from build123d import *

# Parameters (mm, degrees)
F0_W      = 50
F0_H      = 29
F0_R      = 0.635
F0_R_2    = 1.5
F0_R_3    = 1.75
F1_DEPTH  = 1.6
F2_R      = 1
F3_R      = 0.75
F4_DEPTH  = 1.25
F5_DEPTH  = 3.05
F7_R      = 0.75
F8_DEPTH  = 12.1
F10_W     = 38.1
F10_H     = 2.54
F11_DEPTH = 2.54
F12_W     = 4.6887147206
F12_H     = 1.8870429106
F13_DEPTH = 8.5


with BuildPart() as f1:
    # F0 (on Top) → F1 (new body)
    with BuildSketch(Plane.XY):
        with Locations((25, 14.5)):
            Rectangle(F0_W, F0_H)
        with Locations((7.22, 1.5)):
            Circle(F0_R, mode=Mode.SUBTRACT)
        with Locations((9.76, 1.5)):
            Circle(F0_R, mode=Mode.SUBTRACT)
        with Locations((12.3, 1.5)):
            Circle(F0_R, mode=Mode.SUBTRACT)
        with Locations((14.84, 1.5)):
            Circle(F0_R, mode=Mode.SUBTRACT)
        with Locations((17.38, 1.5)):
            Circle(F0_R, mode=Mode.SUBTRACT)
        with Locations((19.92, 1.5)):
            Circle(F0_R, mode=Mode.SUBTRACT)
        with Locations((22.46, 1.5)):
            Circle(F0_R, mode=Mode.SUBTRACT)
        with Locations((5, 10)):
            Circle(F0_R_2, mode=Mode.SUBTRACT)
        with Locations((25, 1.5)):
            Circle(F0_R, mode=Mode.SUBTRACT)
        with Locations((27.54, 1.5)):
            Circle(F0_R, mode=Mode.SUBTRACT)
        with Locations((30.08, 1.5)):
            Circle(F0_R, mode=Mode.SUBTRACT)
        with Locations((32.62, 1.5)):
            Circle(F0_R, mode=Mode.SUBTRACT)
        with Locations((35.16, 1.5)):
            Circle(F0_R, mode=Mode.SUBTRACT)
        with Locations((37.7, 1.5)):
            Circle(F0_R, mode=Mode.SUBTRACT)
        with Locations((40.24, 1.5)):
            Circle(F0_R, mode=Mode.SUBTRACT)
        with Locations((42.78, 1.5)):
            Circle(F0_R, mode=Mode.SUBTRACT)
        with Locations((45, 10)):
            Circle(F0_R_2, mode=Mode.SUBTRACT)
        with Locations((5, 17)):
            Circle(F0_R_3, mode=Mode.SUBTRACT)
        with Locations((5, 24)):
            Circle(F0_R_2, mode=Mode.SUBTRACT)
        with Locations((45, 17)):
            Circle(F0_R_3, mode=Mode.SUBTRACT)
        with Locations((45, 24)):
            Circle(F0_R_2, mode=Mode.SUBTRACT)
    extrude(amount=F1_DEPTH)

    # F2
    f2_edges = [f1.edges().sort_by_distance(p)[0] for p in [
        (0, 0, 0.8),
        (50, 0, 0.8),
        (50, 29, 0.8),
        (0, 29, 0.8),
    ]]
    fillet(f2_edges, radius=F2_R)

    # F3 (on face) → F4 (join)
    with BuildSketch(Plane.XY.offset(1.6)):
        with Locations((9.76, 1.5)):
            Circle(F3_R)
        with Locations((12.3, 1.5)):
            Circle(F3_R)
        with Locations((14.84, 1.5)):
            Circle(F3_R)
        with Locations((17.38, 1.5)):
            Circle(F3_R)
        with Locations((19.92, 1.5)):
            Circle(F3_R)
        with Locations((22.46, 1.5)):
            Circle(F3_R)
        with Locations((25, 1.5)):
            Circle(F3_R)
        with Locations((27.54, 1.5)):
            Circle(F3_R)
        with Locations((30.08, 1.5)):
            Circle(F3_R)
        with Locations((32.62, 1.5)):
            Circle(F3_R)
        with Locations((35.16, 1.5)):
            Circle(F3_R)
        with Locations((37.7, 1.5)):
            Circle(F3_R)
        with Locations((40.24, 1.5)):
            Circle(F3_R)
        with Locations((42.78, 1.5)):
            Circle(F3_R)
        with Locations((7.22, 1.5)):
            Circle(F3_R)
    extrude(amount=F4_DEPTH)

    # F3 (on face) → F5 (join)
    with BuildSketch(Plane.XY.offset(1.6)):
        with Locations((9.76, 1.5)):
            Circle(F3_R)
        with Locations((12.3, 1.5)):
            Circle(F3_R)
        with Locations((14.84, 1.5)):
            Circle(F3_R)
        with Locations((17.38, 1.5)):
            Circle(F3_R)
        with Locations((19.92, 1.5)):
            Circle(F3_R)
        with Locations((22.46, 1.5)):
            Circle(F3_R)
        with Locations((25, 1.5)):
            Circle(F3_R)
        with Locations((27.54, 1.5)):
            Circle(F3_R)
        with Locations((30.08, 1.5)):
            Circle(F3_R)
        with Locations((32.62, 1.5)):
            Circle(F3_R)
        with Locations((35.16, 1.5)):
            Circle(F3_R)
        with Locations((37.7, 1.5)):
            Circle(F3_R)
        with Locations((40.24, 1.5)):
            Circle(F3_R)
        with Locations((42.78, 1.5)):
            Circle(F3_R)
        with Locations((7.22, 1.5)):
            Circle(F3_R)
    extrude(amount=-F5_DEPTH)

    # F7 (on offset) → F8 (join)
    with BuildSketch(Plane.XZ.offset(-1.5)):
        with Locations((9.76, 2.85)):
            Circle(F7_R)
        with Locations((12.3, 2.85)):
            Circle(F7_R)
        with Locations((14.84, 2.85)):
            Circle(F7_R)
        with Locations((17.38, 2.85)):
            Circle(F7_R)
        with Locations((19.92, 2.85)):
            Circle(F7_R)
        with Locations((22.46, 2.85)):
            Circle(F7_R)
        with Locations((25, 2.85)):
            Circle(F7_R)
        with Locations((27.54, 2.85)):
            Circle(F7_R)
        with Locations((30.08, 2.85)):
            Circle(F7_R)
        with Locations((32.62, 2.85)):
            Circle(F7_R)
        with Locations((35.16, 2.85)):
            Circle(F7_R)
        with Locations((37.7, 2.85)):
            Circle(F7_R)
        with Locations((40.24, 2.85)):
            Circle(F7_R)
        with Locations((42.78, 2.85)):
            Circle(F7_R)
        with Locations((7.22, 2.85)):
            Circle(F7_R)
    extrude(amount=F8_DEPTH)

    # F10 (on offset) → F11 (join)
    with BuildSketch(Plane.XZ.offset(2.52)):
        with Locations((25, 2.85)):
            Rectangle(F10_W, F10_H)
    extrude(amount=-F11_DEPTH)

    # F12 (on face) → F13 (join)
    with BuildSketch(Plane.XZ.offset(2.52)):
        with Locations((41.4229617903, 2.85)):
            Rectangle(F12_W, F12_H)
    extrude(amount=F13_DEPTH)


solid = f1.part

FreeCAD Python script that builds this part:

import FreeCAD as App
import Part
import Sketcher

V = App.Vector
Q = App.Units.Quantity


def edges_at(feature, points):
    """Names of the edges that pass closest to the given points."""
    edges = feature.Shape.Edges
    near = lambda p: min(range(len(edges)), key=lambda i: edges[i].distToShape(Part.Vertex(*p))[0])
    return sorted({f"Edge{near(p) + 1}" for p in points})


def add_polygon(sketch, points):
    """Adds a closed chain of lines whose ends are joined by coincident constraints."""
    first, n = sketch.GeometryCount, len(points)
    for a, b in zip(points, points[1:] + points[:1]):
        sketch.addGeometry(Part.LineSegment(App.Vector(*a, 0), App.Vector(*b, 0)), False)
    for i in range(n):
        sketch.addConstraint(Sketcher.Constraint("Coincident", first + i, 2, first + (i + 1) % n, 1))

doc = App.newDocument("Part")
body = doc.addObject("PartDesign::Body", "Body")

# Sketch on XY plane
sketch1 = body.newObject("Sketcher::SketchObject", "Sketch")
sketch1.AttachmentSupport = (doc.getObject("XY_Plane"), [""])
sketch1.MapMode = "FlatFace"
add_polygon(sketch1, [(0, 29), (0, 0), (50, 0), (50, 29)])  # lines 0-3
sketch1.addGeometry(Part.Circle(V(7.22, 1.5, 0), V(0, 0, 1), 0.635), False)  # 4
sketch1.addGeometry(Part.Circle(V(9.76, 1.5, 0), V(0, 0, 1), 0.635), False)  # 5
sketch1.addGeometry(Part.Circle(V(12.3, 1.5, 0), V(0, 0, 1), 0.635), False)  # 6
sketch1.addGeometry(Part.Circle(V(14.84, 1.5, 0), V(0, 0, 1), 0.635), False)  # 7
sketch1.addGeometry(Part.Circle(V(17.38, 1.5, 0), V(0, 0, 1), 0.635), False)  # 8
sketch1.addGeometry(Part.Circle(V(19.92, 1.5, 0), V(0, 0, 1), 0.635), False)  # 9
sketch1.addGeometry(Part.Circle(V(22.46, 1.5, 0), V(0, 0, 1), 0.635), False)  # 10
sketch1.addGeometry(Part.Circle(V(5, 10, 0), V(0, 0, 1), 1.5), False)  # 11
sketch1.addGeometry(Part.Circle(V(25, 1.5, 0), V(0, 0, 1), 0.635), False)  # 12
sketch1.addGeometry(Part.Circle(V(27.54, 1.5, 0), V(0, 0, 1), 0.635), False)  # 13
sketch1.addGeometry(Part.Circle(V(30.08, 1.5, 0), V(0, 0, 1), 0.635), False)  # 14
sketch1.addGeometry(Part.Circle(V(32.62, 1.5, 0), V(0, 0, 1), 0.635), False)  # 15
sketch1.addGeometry(Part.Circle(V(35.16, 1.5, 0), V(0, 0, 1), 0.635), False)  # 16
sketch1.addGeometry(Part.Circle(V(37.7, 1.5, 0), V(0, 0, 1), 0.635), False)  # 17
sketch1.addGeometry(Part.Circle(V(40.24, 1.5, 0), V(0, 0, 1), 0.635), False)  # 18
sketch1.addGeometry(Part.Circle(V(42.78, 1.5, 0), V(0, 0, 1), 0.635), False)  # 19
sketch1.addGeometry(Part.Circle(V(45, 10, 0), V(0, 0, 1), 1.5), False)  # 20
sketch1.addGeometry(Part.Circle(V(5, 17, 0), V(0, 0, 1), 1.75), False)  # 21
sketch1.addGeometry(Part.Circle(V(5, 24, 0), V(0, 0, 1), 1.5), False)  # 22
sketch1.addGeometry(Part.Circle(V(45, 17, 0), V(0, 0, 1), 1.75), False)  # 23
sketch1.addGeometry(Part.Circle(V(45, 24, 0), V(0, 0, 1), 1.5), False)  # 24
sketch1.addConstraint(Sketcher.Constraint("Vertical", 0))
sketch1.addConstraint(Sketcher.Constraint("Horizontal", 1))
sketch1.addConstraint(Sketcher.Constraint("Vertical", 2))
sketch1.addConstraint(Sketcher.Constraint("Horizontal", 3))
sketch1.addConstraint(Sketcher.Constraint("Coincident", 0, 2, -1, 1))
sketch1.addConstraint(Sketcher.Constraint("Equal", 4, 5))
sketch1.addConstraint(Sketcher.Constraint("Equal", 5, 6))
sketch1.addConstraint(Sketcher.Constraint("Equal", 6, 7))
sketch1.addConstraint(Sketcher.Constraint("Equal", 7, 8))
sketch1.addConstraint(Sketcher.Constraint("Equal", 8, 9))
sketch1.addConstraint(Sketcher.Constraint("Equal", 9, 10))
sketch1.addConstraint(Sketcher.Constraint("Equal", 10, 12))
sketch1.addConstraint(Sketcher.Constraint("Equal", 12, 13))
sketch1.addConstraint(Sketcher.Constraint("Equal", 13, 14))
sketch1.addConstraint(Sketcher.Constraint("Equal", 14, 15))
sketch1.addConstraint(Sketcher.Constraint("Equal", 15, 16))
sketch1.addConstraint(Sketcher.Constraint("Equal", 16, 17))
sketch1.addConstraint(Sketcher.Constraint("Equal", 17, 18))
sketch1.addConstraint(Sketcher.Constraint("Equal", 18, 19))
sketch1.addConstraint(Sketcher.Constraint("Equal", 11, 20))
sketch1.addConstraint(Sketcher.Constraint("Equal", 20, 22))
sketch1.addConstraint(Sketcher.Constraint("Equal", 21, 23))
sketch1.addConstraint(Sketcher.Constraint("Equal", 22, 24))
sketch1.addConstraint(Sketcher.Constraint("Horizontal", 4, 3, 5, 3))
sketch1.addConstraint(Sketcher.Constraint("Horizontal", 5, 3, 6, 3))
sketch1.addConstraint(Sketcher.Constraint("Horizontal", 6, 3, 7, 3))
sketch1.addConstraint(Sketcher.Constraint("Horizontal", 7, 3, 8, 3))
sketch1.addConstraint(Sketcher.Constraint("Horizontal", 8, 3, 9, 3))
sketch1.addConstraint(Sketcher.Constraint("Horizontal", 9, 3, 10, 3))
sketch1.addConstraint(Sketcher.Constraint("Horizontal", 10, 3, 12, 3))
sketch1.addConstraint(Sketcher.Constraint("Horizontal", 12, 3, 13, 3))
sketch1.addConstraint(Sketcher.Constraint("Horizontal", 13, 3, 14, 3))
sketch1.addConstraint(Sketcher.Constraint("Horizontal", 14, 3, 15, 3))
sketch1.addConstraint(Sketcher.Constraint("Horizontal", 15, 3, 16, 3))
sketch1.addConstraint(Sketcher.Constraint("Horizontal", 16, 3, 17, 3))
sketch1.addConstraint(Sketcher.Constraint("Horizontal", 17, 3, 18, 3))
sketch1.addConstraint(Sketcher.Constraint("Horizontal", 18, 3, 19, 3))
sketch1.addConstraint(Sketcher.Constraint("Horizontal", 11, 3, 20, 3))
sketch1.addConstraint(Sketcher.Constraint("Horizontal", 21, 3, 23, 3))
sketch1.addConstraint(Sketcher.Constraint("Horizontal", 22, 3, 24, 3))
sketch1.addConstraint(Sketcher.Constraint("Vertical", 11, 3, 21, 3))
sketch1.addConstraint(Sketcher.Constraint("Vertical", 21, 3, 22, 3))
sketch1.addConstraint(Sketcher.Constraint("Vertical", 20, 3, 23, 3))
sketch1.addConstraint(Sketcher.Constraint("Vertical", 23, 3, 24, 3))
sketch1.addConstraint(Sketcher.Constraint("Diameter", 11, Q("3 mm")))
sketch1.addConstraint(Sketcher.Constraint("Diameter", 21, Q("3.5 mm")))
sketch1.addConstraint(Sketcher.Constraint("Diameter", 4, Q("1.27 mm")))
sketch1.addConstraint(Sketcher.Constraint("DistanceX", 1, 1, 1, 2, Q("50 mm")))
sketch1.addConstraint(Sketcher.Constraint("DistanceY", 0, 2, 0, 1, Q("29 mm")))
sketch1.addConstraint(Sketcher.Constraint("DistanceX", -1, 1, 11, 3, Q("5 mm")))
sketch1.addConstraint(Sketcher.Constraint("DistanceY", -1, 1, 11, 3, Q("10 mm")))
sketch1.addConstraint(Sketcher.Constraint("DistanceX", -1, 1, 12, 3, Q("25 mm")))
sketch1.addConstraint(Sketcher.Constraint("DistanceX", -1, 1, 20, 3, Q("45 mm")))
sketch1.addConstraint(Sketcher.Constraint("DistanceY", -1, 1, 21, 3, Q("17 mm")))
sketch1.addConstraint(Sketcher.Constraint("DistanceY", -1, 1, 22, 3, Q("24 mm")))
sketch1.addConstraint(Sketcher.Constraint("DistanceY", -1, 1, 4, 3, Q("1.5 mm")))
sketch1.addConstraint(Sketcher.Constraint("DistanceX", -1, 1, 6, 3, Q("12.3 mm")))
sketch1.addConstraint(Sketcher.Constraint("DistanceX", -1, 1, 17, 3, Q("37.7 mm")))
sketch1.addConstraint(Sketcher.Constraint("DistanceX", 4, 3, 9, 3, Q("12.7 mm")))
sketch1.addConstraint(Sketcher.Constraint("DistanceX", 5, 3, 10, 3, Q("12.7 mm")))
sketch1.addConstraint(Sketcher.Constraint("DistanceX", 7, 3, 13, 3, Q("12.7 mm")))
sketch1.addConstraint(Sketcher.Constraint("DistanceX", 8, 3, 14, 3, Q("12.7 mm")))
sketch1.addConstraint(Sketcher.Constraint("DistanceX", 9, 3, 15, 3, Q("12.7 mm")))
sketch1.addConstraint(Sketcher.Constraint("DistanceX", 10, 3, 16, 3, Q("12.7 mm")))
sketch1.addConstraint(Sketcher.Constraint("DistanceX", 13, 3, 18, 3, Q("12.7 mm")))
sketch1.addConstraint(Sketcher.Constraint("DistanceX", 14, 3, 19, 3, Q("12.7 mm")))
sketch1.addConstraint(Sketcher.Constraint("DistanceX", -1, 1, 4, 3, Q("7.22 mm")))
sketch1.addConstraint(Sketcher.Constraint("DistanceX", -1, 1, 5, 3, Q("9.76 mm")))
sketch1.addConstraint(Sketcher.Constraint("DistanceX", -1, 1, 7, 3, Q("14.84 mm")))
sketch1.addConstraint(Sketcher.Constraint("DistanceX", -1, 1, 8, 3, Q("17.38 mm")))
pad1 = body.newObject("PartDesign::Pad", "Pad")
pad1.Profile = sketch1
pad1.Length = 1.6
doc.recompute()

fillet = body.newObject("PartDesign::Fillet", "Fillet")
fillet.Base = (pad1, edges_at(pad1, [
    (0, 0, 0.8),
    (50, 0, 0.8),
    (50, 29, 0.8),
    (0, 29, 0.8),
]))
fillet.Radius = 1

# Sketch on XY plane
sketch2 = body.newObject("Sketcher::SketchObject", "Sketch001")
sketch2.AttachmentSupport = (doc.getObject("XY_Plane"), [""])
sketch2.MapMode = "FlatFace"
sketch2.AttachmentOffset = App.Placement(V(0, 0, 1.6), App.Rotation())
sketch2.addGeometry(Part.Circle(V(9.76, 1.5, 0), V(0, 0, 1), 0.75), False)
sketch2.addGeometry(Part.Circle(V(12.3, 1.5, 0), V(0, 0, 1), 0.75), False)
sketch2.addGeometry(Part.Circle(V(14.84, 1.5, 0), V(0, 0, 1), 0.75), False)
sketch2.addGeometry(Part.Circle(V(17.38, 1.5, 0), V(0, 0, 1), 0.75), False)
sketch2.addGeometry(Part.Circle(V(19.92, 1.5, 0), V(0, 0, 1), 0.75), False)
sketch2.addGeometry(Part.Circle(V(22.46, 1.5, 0), V(0, 0, 1), 0.75), False)
sketch2.addGeometry(Part.Circle(V(25, 1.5, 0), V(0, 0, 1), 0.75), False)
sketch2.addGeometry(Part.Circle(V(27.54, 1.5, 0), V(0, 0, 1), 0.75), False)
sketch2.addGeometry(Part.Circle(V(30.08, 1.5, 0), V(0, 0, 1), 0.75), False)
sketch2.addGeometry(Part.Circle(V(32.62, 1.5, 0), V(0, 0, 1), 0.75), False)
sketch2.addGeometry(Part.Circle(V(35.16, 1.5, 0), V(0, 0, 1), 0.75), False)
sketch2.addGeometry(Part.Circle(V(37.7, 1.5, 0), V(0, 0, 1), 0.75), False)
sketch2.addGeometry(Part.Circle(V(40.24, 1.5, 0), V(0, 0, 1), 0.75), False)
sketch2.addGeometry(Part.Circle(V(42.78, 1.5, 0), V(0, 0, 1), 0.75), False)
sketch2.addGeometry(Part.Circle(V(7.22, 1.5, 0), V(0, 0, 1), 0.75), False)
sketch2.addConstraint(Sketcher.Constraint("Equal", 0, 1))
sketch2.addConstraint(Sketcher.Constraint("Equal", 1, 2))
sketch2.addConstraint(Sketcher.Constraint("Equal", 2, 3))
sketch2.addConstraint(Sketcher.Constraint("Equal", 3, 4))
sketch2.addConstraint(Sketcher.Constraint("Equal", 4, 5))
sketch2.addConstraint(Sketcher.Constraint("Equal", 5, 6))
sketch2.addConstraint(Sketcher.Constraint("Equal", 6, 7))
sketch2.addConstraint(Sketcher.Constraint("Equal", 7, 8))
sketch2.addConstraint(Sketcher.Constraint("Equal", 8, 9))
sketch2.addConstraint(Sketcher.Constraint("Equal", 9, 10))
sketch2.addConstraint(Sketcher.Constraint("Equal", 10, 11))
sketch2.addConstraint(Sketcher.Constraint("Equal", 11, 12))
sketch2.addConstraint(Sketcher.Constraint("Equal", 12, 13))
sketch2.addConstraint(Sketcher.Constraint("Equal", 13, 14))
sketch2.addConstraint(Sketcher.Constraint("Horizontal", 0, 3, 1, 3))
sketch2.addConstraint(Sketcher.Constraint("Horizontal", 1, 3, 2, 3))
sketch2.addConstraint(Sketcher.Constraint("Horizontal", 2, 3, 3, 3))
sketch2.addConstraint(Sketcher.Constraint("Horizontal", 3, 3, 4, 3))
sketch2.addConstraint(Sketcher.Constraint("Horizontal", 4, 3, 5, 3))
sketch2.addConstraint(Sketcher.Constraint("Horizontal", 5, 3, 6, 3))
sketch2.addConstraint(Sketcher.Constraint("Horizontal", 6, 3, 7, 3))
sketch2.addConstraint(Sketcher.Constraint("Horizontal", 7, 3, 8, 3))
sketch2.addConstraint(Sketcher.Constraint("Horizontal", 8, 3, 9, 3))
sketch2.addConstraint(Sketcher.Constraint("Horizontal", 9, 3, 10, 3))
sketch2.addConstraint(Sketcher.Constraint("Horizontal", 10, 3, 11, 3))
sketch2.addConstraint(Sketcher.Constraint("Horizontal", 11, 3, 12, 3))
sketch2.addConstraint(Sketcher.Constraint("Horizontal", 12, 3, 13, 3))
sketch2.addConstraint(Sketcher.Constraint("Horizontal", 13, 3, 14, 3))
sketch2.addConstraint(Sketcher.Constraint("Diameter", 0, Q("1.5 mm")))
sketch2.addConstraint(Sketcher.Constraint("DistanceX", -1, 1, 6, 3, Q("25 mm")))
sketch2.addConstraint(Sketcher.Constraint("DistanceY", -1, 1, 0, 3, Q("1.5 mm")))
sketch2.addConstraint(Sketcher.Constraint("DistanceX", -1, 1, 1, 3, Q("12.3 mm")))
sketch2.addConstraint(Sketcher.Constraint("DistanceX", -1, 1, 11, 3, Q("37.7 mm")))
sketch2.addConstraint(Sketcher.Constraint("DistanceX", 0, 3, 5, 3, Q("12.7 mm")))
sketch2.addConstraint(Sketcher.Constraint("DistanceX", 2, 3, 7, 3, Q("12.7 mm")))
sketch2.addConstraint(Sketcher.Constraint("DistanceX", 3, 3, 8, 3, Q("12.7 mm")))
sketch2.addConstraint(Sketcher.Constraint("DistanceX", 4, 3, 9, 3, Q("12.7 mm")))
sketch2.addConstraint(Sketcher.Constraint("DistanceX", 5, 3, 10, 3, Q("12.7 mm")))
sketch2.addConstraint(Sketcher.Constraint("DistanceX", 7, 3, 12, 3, Q("12.7 mm")))
sketch2.addConstraint(Sketcher.Constraint("DistanceX", 8, 3, 13, 3, Q("12.7 mm")))
sketch2.addConstraint(Sketcher.Constraint("DistanceX", 14, 3, 4, 3, Q("12.7 mm")))
sketch2.addConstraint(Sketcher.Constraint("DistanceX", -1, 1, 0, 3, Q("9.76 mm")))
sketch2.addConstraint(Sketcher.Constraint("DistanceX", -1, 1, 2, 3, Q("14.84 mm")))
sketch2.addConstraint(Sketcher.Constraint("DistanceX", -1, 1, 3, 3, Q("17.38 mm")))
sketch2.addConstraint(Sketcher.Constraint("DistanceX", -1, 1, 4, 3, Q("19.92 mm")))
pad2 = body.newObject("PartDesign::Pad", "Pad001")
pad2.Profile = sketch2
pad2.Length = 1.25

# Sketch on XY plane
sketch3 = body.newObject("Sketcher::SketchObject", "Sketch002")
sketch3.AttachmentSupport = (doc.getObject("XY_Plane"), [""])
sketch3.MapMode = "FlatFace"
sketch3.AttachmentOffset = App.Placement(V(0, 0, 1.6), App.Rotation())
sketch3.addGeometry(Part.Circle(V(9.76, 1.5, 0), V(0, 0, 1), 0.75), False)
sketch3.addGeometry(Part.Circle(V(12.3, 1.5, 0), V(0, 0, 1), 0.75), False)
sketch3.addGeometry(Part.Circle(V(14.84, 1.5, 0), V(0, 0, 1), 0.75), False)
sketch3.addGeometry(Part.Circle(V(17.38, 1.5, 0), V(0, 0, 1), 0.75), False)
sketch3.addGeometry(Part.Circle(V(19.92, 1.5, 0), V(0, 0, 1), 0.75), False)
sketch3.addGeometry(Part.Circle(V(22.46, 1.5, 0), V(0, 0, 1), 0.75), False)
sketch3.addGeometry(Part.Circle(V(25, 1.5, 0), V(0, 0, 1), 0.75), False)
sketch3.addGeometry(Part.Circle(V(27.54, 1.5, 0), V(0, 0, 1), 0.75), False)
sketch3.addGeometry(Part.Circle(V(30.08, 1.5, 0), V(0, 0, 1), 0.75), False)
sketch3.addGeometry(Part.Circle(V(32.62, 1.5, 0), V(0, 0, 1), 0.75), False)
sketch3.addGeometry(Part.Circle(V(35.16, 1.5, 0), V(0, 0, 1), 0.75), False)
sketch3.addGeometry(Part.Circle(V(37.7, 1.5, 0), V(0, 0, 1), 0.75), False)
sketch3.addGeometry(Part.Circle(V(40.24, 1.5, 0), V(0, 0, 1), 0.75), False)
sketch3.addGeometry(Part.Circle(V(42.78, 1.5, 0), V(0, 0, 1), 0.75), False)
sketch3.addGeometry(Part.Circle(V(7.22, 1.5, 0), V(0, 0, 1), 0.75), False)
sketch3.addConstraint(Sketcher.Constraint("Equal", 0, 1))
sketch3.addConstraint(Sketcher.Constraint("Equal", 1, 2))
sketch3.addConstraint(Sketcher.Constraint("Equal", 2, 3))
sketch3.addConstraint(Sketcher.Constraint("Equal", 3, 4))
sketch3.addConstraint(Sketcher.Constraint("Equal", 4, 5))
sketch3.addConstraint(Sketcher.Constraint("Equal", 5, 6))
sketch3.addConstraint(Sketcher.Constraint("Equal", 6, 7))
sketch3.addConstraint(Sketcher.Constraint("Equal", 7, 8))
sketch3.addConstraint(Sketcher.Constraint("Equal", 8, 9))
sketch3.addConstraint(Sketcher.Constraint("Equal", 9, 10))
sketch3.addConstraint(Sketcher.Constraint("Equal", 10, 11))
sketch3.addConstraint(Sketcher.Constraint("Equal", 11, 12))
sketch3.addConstraint(Sketcher.Constraint("Equal", 12, 13))
sketch3.addConstraint(Sketcher.Constraint("Equal", 13, 14))
sketch3.addConstraint(Sketcher.Constraint("Horizontal", 0, 3, 1, 3))
sketch3.addConstraint(Sketcher.Constraint("Horizontal", 1, 3, 2, 3))
sketch3.addConstraint(Sketcher.Constraint("Horizontal", 2, 3, 3, 3))
sketch3.addConstraint(Sketcher.Constraint("Horizontal", 3, 3, 4, 3))
sketch3.addConstraint(Sketcher.Constraint("Horizontal", 4, 3, 5, 3))
sketch3.addConstraint(Sketcher.Constraint("Horizontal", 5, 3, 6, 3))
sketch3.addConstraint(Sketcher.Constraint("Horizontal", 6, 3, 7, 3))
sketch3.addConstraint(Sketcher.Constraint("Horizontal", 7, 3, 8, 3))
sketch3.addConstraint(Sketcher.Constraint("Horizontal", 8, 3, 9, 3))
sketch3.addConstraint(Sketcher.Constraint("Horizontal", 9, 3, 10, 3))
sketch3.addConstraint(Sketcher.Constraint("Horizontal", 10, 3, 11, 3))
sketch3.addConstraint(Sketcher.Constraint("Horizontal", 11, 3, 12, 3))
sketch3.addConstraint(Sketcher.Constraint("Horizontal", 12, 3, 13, 3))
sketch3.addConstraint(Sketcher.Constraint("Horizontal", 13, 3, 14, 3))
sketch3.addConstraint(Sketcher.Constraint("Diameter", 0, Q("1.5 mm")))
sketch3.addConstraint(Sketcher.Constraint("DistanceX", -1, 1, 6, 3, Q("25 mm")))
sketch3.addConstraint(Sketcher.Constraint("DistanceY", -1, 1, 0, 3, Q("1.5 mm")))
sketch3.addConstraint(Sketcher.Constraint("DistanceX", -1, 1, 1, 3, Q("12.3 mm")))
sketch3.addConstraint(Sketcher.Constraint("DistanceX", -1, 1, 11, 3, Q("37.7 mm")))
sketch3.addConstraint(Sketcher.Constraint("DistanceX", 0, 3, 5, 3, Q("12.7 mm")))
sketch3.addConstraint(Sketcher.Constraint("DistanceX", 2, 3, 7, 3, Q("12.7 mm")))
sketch3.addConstraint(Sketcher.Constraint("DistanceX", 3, 3, 8, 3, Q("12.7 mm")))
sketch3.addConstraint(Sketcher.Constraint("DistanceX", 4, 3, 9, 3, Q("12.7 mm")))
sketch3.addConstraint(Sketcher.Constraint("DistanceX", 5, 3, 10, 3, Q("12.7 mm")))
sketch3.addConstraint(Sketcher.Constraint("DistanceX", 7, 3, 12, 3, Q("12.7 mm")))
sketch3.addConstraint(Sketcher.Constraint("DistanceX", 8, 3, 13, 3, Q("12.7 mm")))
sketch3.addConstraint(Sketcher.Constraint("DistanceX", 14, 3, 4, 3, Q("12.7 mm")))
sketch3.addConstraint(Sketcher.Constraint("DistanceX", -1, 1, 0, 3, Q("9.76 mm")))
sketch3.addConstraint(Sketcher.Constraint("DistanceX", -1, 1, 2, 3, Q("14.84 mm")))
sketch3.addConstraint(Sketcher.Constraint("DistanceX", -1, 1, 3, 3, Q("17.38 mm")))
sketch3.addConstraint(Sketcher.Constraint("DistanceX", -1, 1, 4, 3, Q("19.92 mm")))
pad3 = body.newObject("PartDesign::Pad", "Pad002")
pad3.Profile = sketch3
pad3.Length = 3.05
pad3.Reversed = True

# Sketch on XZ plane
sketch4 = body.newObject("Sketcher::SketchObject", "Sketch003")
sketch4.AttachmentSupport = (doc.getObject("XZ_Plane"), [""])
sketch4.MapMode = "FlatFace"
sketch4.AttachmentOffset = App.Placement(V(0, 0, -1.5), App.Rotation())
sketch4.addGeometry(Part.Circle(V(9.76, 2.85, 0), V(0, 0, 1), 0.75), False)
sketch4.addGeometry(Part.Circle(V(12.3, 2.85, 0), V(0, 0, 1), 0.75), False)
sketch4.addGeometry(Part.Circle(V(14.84, 2.85, 0), V(0, 0, 1), 0.75), False)
sketch4.addGeometry(Part.Circle(V(17.38, 2.85, 0), V(0, 0, 1), 0.75), False)
sketch4.addGeometry(Part.Circle(V(19.92, 2.85, 0), V(0, 0, 1), 0.75), False)
sketch4.addGeometry(Part.Circle(V(22.46, 2.85, 0), V(0, 0, 1), 0.75), False)
sketch4.addGeometry(Part.Circle(V(25, 2.85, 0), V(0, 0, 1), 0.75), False)
sketch4.addGeometry(Part.Circle(V(27.54, 2.85, 0), V(0, 0, 1), 0.75), False)
sketch4.addGeometry(Part.Circle(V(30.08, 2.85, 0), V(0, 0, 1), 0.75), False)
sketch4.addGeometry(Part.Circle(V(32.62, 2.85, 0), V(0, 0, 1), 0.75), False)
sketch4.addGeometry(Part.Circle(V(35.16, 2.85, 0), V(0, 0, 1), 0.75), False)
sketch4.addGeometry(Part.Circle(V(37.7, 2.85, 0), V(0, 0, 1), 0.75), False)
sketch4.addGeometry(Part.Circle(V(40.24, 2.85, 0), V(0, 0, 1), 0.75), False)
sketch4.addGeometry(Part.Circle(V(42.78, 2.85, 0), V(0, 0, 1), 0.75), False)
sketch4.addGeometry(Part.Circle(V(7.22, 2.85, 0), V(0, 0, 1), 0.75), False)
sketch4.addConstraint(Sketcher.Constraint("Equal", 0, 1))
sketch4.addConstraint(Sketcher.Constraint("Equal", 1, 2))
sketch4.addConstraint(Sketcher.Constraint("Equal", 2, 3))
sketch4.addConstraint(Sketcher.Constraint("Equal", 3, 4))
sketch4.addConstraint(Sketcher.Constraint("Equal", 4, 5))
sketch4.addConstraint(Sketcher.Constraint("Equal", 5, 6))
sketch4.addConstraint(Sketcher.Constraint("Equal", 6, 7))
sketch4.addConstraint(Sketcher.Constraint("Equal", 7, 8))
sketch4.addConstraint(Sketcher.Constraint("Equal", 8, 9))
sketch4.addConstraint(Sketcher.Constraint("Equal", 9, 10))
sketch4.addConstraint(Sketcher.Constraint("Equal", 10, 11))
sketch4.addConstraint(Sketcher.Constraint("Equal", 11, 12))
sketch4.addConstraint(Sketcher.Constraint("Equal", 12, 13))
sketch4.addConstraint(Sketcher.Constraint("Equal", 13, 14))
sketch4.addConstraint(Sketcher.Constraint("Horizontal", 0, 3, 1, 3))
sketch4.addConstraint(Sketcher.Constraint("Horizontal", 1, 3, 2, 3))
sketch4.addConstraint(Sketcher.Constraint("Horizontal", 2, 3, 3, 3))
sketch4.addConstraint(Sketcher.Constraint("Horizontal", 3, 3, 4, 3))
sketch4.addConstraint(Sketcher.Constraint("Horizontal", 4, 3, 5, 3))
sketch4.addConstraint(Sketcher.Constraint("Horizontal", 5, 3, 6, 3))
sketch4.addConstraint(Sketcher.Constraint("Horizontal", 6, 3, 7, 3))
sketch4.addConstraint(Sketcher.Constraint("Horizontal", 7, 3, 8, 3))
sketch4.addConstraint(Sketcher.Constraint("Horizontal", 8, 3, 9, 3))
sketch4.addConstraint(Sketcher.Constraint("Horizontal", 9, 3, 10, 3))
sketch4.addConstraint(Sketcher.Constraint("Horizontal", 10, 3, 11, 3))
sketch4.addConstraint(Sketcher.Constraint("Horizontal", 11, 3, 12, 3))
sketch4.addConstraint(Sketcher.Constraint("Horizontal", 12, 3, 13, 3))
sketch4.addConstraint(Sketcher.Constraint("Horizontal", 13, 3, 14, 3))
sketch4.addConstraint(Sketcher.Constraint("Diameter", 0, Q("1.5 mm")))
sketch4.addConstraint(Sketcher.Constraint("DistanceX", -1, 1, 6, 3, Q("25 mm")))
sketch4.addConstraint(Sketcher.Constraint("DistanceX", -1, 1, 1, 3, Q("12.3 mm")))
sketch4.addConstraint(Sketcher.Constraint("DistanceX", -1, 1, 11, 3, Q("37.7 mm")))
sketch4.addConstraint(Sketcher.Constraint("DistanceX", 0, 3, 5, 3, Q("12.7 mm")))
sketch4.addConstraint(Sketcher.Constraint("DistanceX", 2, 3, 7, 3, Q("12.7 mm")))
sketch4.addConstraint(Sketcher.Constraint("DistanceX", 3, 3, 8, 3, Q("12.7 mm")))
sketch4.addConstraint(Sketcher.Constraint("DistanceX", 4, 3, 9, 3, Q("12.7 mm")))
sketch4.addConstraint(Sketcher.Constraint("DistanceX", 5, 3, 10, 3, Q("12.7 mm")))
sketch4.addConstraint(Sketcher.Constraint("DistanceX", 7, 3, 12, 3, Q("12.7 mm")))
sketch4.addConstraint(Sketcher.Constraint("DistanceX", 8, 3, 13, 3, Q("12.7 mm")))
sketch4.addConstraint(Sketcher.Constraint("DistanceX", 14, 3, 4, 3, Q("12.7 mm")))
sketch4.addConstraint(Sketcher.Constraint("DistanceX", -1, 1, 0, 3, Q("9.76 mm")))
sketch4.addConstraint(Sketcher.Constraint("DistanceY", -1, 1, 0, 3, Q("2.85 mm")))
sketch4.addConstraint(Sketcher.Constraint("DistanceX", -1, 1, 2, 3, Q("14.84 mm")))
sketch4.addConstraint(Sketcher.Constraint("DistanceX", -1, 1, 3, 3, Q("17.38 mm")))
sketch4.addConstraint(Sketcher.Constraint("DistanceX", -1, 1, 4, 3, Q("19.92 mm")))
pad4 = body.newObject("PartDesign::Pad", "Pad003")
pad4.Profile = sketch4
pad4.Length = 12.1

# Sketch on XZ plane
sketch5 = body.newObject("Sketcher::SketchObject", "Sketch004")
sketch5.AttachmentSupport = (doc.getObject("XZ_Plane"), [""])
sketch5.MapMode = "FlatFace"
sketch5.AttachmentOffset = App.Placement(V(0, 0, 2.52), App.Rotation())
add_polygon(sketch5, [(5.95, 4.12), (5.95, 1.58), (44.05, 1.58), (44.05, 4.12)])  # lines 0-3
sketch5.addConstraint(Sketcher.Constraint("Vertical", 0))
sketch5.addConstraint(Sketcher.Constraint("Horizontal", 1))
sketch5.addConstraint(Sketcher.Constraint("Vertical", 2))
sketch5.addConstraint(Sketcher.Constraint("Horizontal", 3))
sketch5.addConstraint(Sketcher.Constraint("DistanceX", 1, 1, 1, 2, Q("38.1 mm")))
sketch5.addConstraint(Sketcher.Constraint("DistanceY", 0, 2, 0, 1, Q("2.54 mm")))
sketch5.addConstraint(Sketcher.Constraint("DistanceX", -1, 1, 0, 2, Q("5.95 mm")))
sketch5.addConstraint(Sketcher.Constraint("DistanceY", -1, 1, 0, 2, Q("1.58 mm")))
pad5 = body.newObject("PartDesign::Pad", "Pad004")
pad5.Profile = sketch5
pad5.Length = 2.54
pad5.Reversed = True

# Sketch on XZ plane
sketch6 = body.newObject("Sketcher::SketchObject", "Sketch005")
sketch6.AttachmentSupport = (doc.getObject("XZ_Plane"), [""])
sketch6.MapMode = "FlatFace"
sketch6.AttachmentOffset = App.Placement(V(0, 0, 2.52), App.Rotation())
add_polygon(sketch6, [(39.078604, 3.793521), (39.078604, 1.906479), (43.767319, 1.906479), (43.767319, 3.793521)])  # lines 0-3
sketch6.addConstraint(Sketcher.Constraint("Vertical", 0))
sketch6.addConstraint(Sketcher.Constraint("Horizontal", 1))
sketch6.addConstraint(Sketcher.Constraint("Vertical", 2))
sketch6.addConstraint(Sketcher.Constraint("Horizontal", 3))
sketch6.addConstraint(Sketcher.Constraint("DistanceX", 1, 1, 1, 2, Q("4.688715 mm")))
sketch6.addConstraint(Sketcher.Constraint("DistanceY", 0, 2, 0, 1, Q("1.887043 mm")))
sketch6.addConstraint(Sketcher.Constraint("DistanceY", -1, 1, 0, 2, Q("1.906479 mm")))
sketch6.addConstraint(Sketcher.Constraint("DistanceX", -1, 1, 1, 2, Q("43.767319 mm")))
pad6 = body.newObject("PartDesign::Pad", "Pad005")
pad6.Profile = sketch6
pad6.Length = 8.5

doc.recompute()
